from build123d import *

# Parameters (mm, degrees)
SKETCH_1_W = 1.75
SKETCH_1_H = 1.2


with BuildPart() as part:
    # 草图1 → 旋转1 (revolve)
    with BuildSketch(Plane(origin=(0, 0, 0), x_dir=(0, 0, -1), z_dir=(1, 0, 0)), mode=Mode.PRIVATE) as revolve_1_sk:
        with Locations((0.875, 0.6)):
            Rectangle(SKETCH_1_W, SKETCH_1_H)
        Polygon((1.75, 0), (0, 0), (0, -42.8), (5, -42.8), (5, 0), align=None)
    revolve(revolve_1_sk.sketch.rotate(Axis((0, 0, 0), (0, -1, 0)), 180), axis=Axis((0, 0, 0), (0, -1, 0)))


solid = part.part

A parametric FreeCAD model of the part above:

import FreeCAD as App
import Part
import Sketcher

V = App.Vector
Q = App.Units.Quantity

doc = App.newDocument("Part")
body = doc.addObject("PartDesign::Body", "Body")

sketch1 = body.newObject("Sketcher::SketchObject", "Sketch")
sketch1.AttachmentSupport = (doc.getObject("YZ_Plane"), [""])
sketch1.MapMode = "FlatFace"
sketch1.addGeometry(Part.LineSegment(V(1.2, 0, 0), V(-42.8, 0, 0)), False)
sketch1.addGeometry(Part.LineSegment(V(-42.8, 0, 0), V(-42.8, -5, 0)), False)
sketch1.addGeometry(Part.LineSegment(V(-42.8, -5, 0), V(0, -5, 0)), False)
sketch1.addGeometry(Part.LineSegment(V(0, -5, 0), V(0, -1.75, 0)), False)
sketch1.addGeometry(Part.LineSegment(V(0, -1.75, 0), V(1.2, -1.75, 0)), False)
sketch1.addGeometry(Part.LineSegment(V(1.2, -1.75, 0), V(1.2, 0, 0)), False)
sketch1.addConstraint(Sketcher.Constraint("Coincident", 0, 2, 1, 1))
sketch1.addConstraint(Sketcher.Constraint("Coincident", 1, 2, 2, 1))
sketch1.addConstraint(Sketcher.Constraint("Coincident", 2, 2, 3, 1))
sketch1.addConstraint(Sketcher.Constraint("Coincident", 3, 2, 4, 1))
sketch1.addConstraint(Sketcher.Constraint("Coincident", 4, 2, 5, 1))
sketch1.addConstraint(Sketcher.Constraint("Coincident", 5, 2, 0, 1))
sketch1.addConstraint(Sketcher.Constraint("Horizontal", 0))
sketch1.addConstraint(Sketcher.Constraint("Vertical", 1))
sketch1.addConstraint(Sketcher.Constraint("Horizontal", 2))
sketch1.addConstraint(Sketcher.Constraint("Vertical", 3))
sketch1.addConstraint(Sketcher.Constraint("Horizontal", 4))
sketch1.addConstraint(Sketcher.Constraint("Vertical", 5))
sketch1.addConstraint(Sketcher.Constraint("PointOnObject", 0, 2, -1))
sketch1.addConstraint(Sketcher.Constraint("PointOnObject", 2, 2, -2))
sketch1.addConstraint(Sketcher.Constraint("DistanceX", 0, 2, 0, 1, Q("44 mm")))
sketch1.addConstraint(Sketcher.Constraint("DistanceY", 1, 2, 1, 1, Q("5 mm")))
sketch1.addConstraint(Sketcher.Constraint("DistanceX", 2, 1, 2, 2, Q("42.8 mm")))
sketch1.addConstraint(Sketcher.Constraint("DistanceY", 3, 1, 3, 2, Q("3.25 mm")))
revolution = body.newObject("PartDesign::Revolution", "Revolution")
revolution.Profile = sketch1
revolution.ReferenceAxis = (sketch1, ["H_Axis"])
revolution.Angle = 360

doc.recompute()
